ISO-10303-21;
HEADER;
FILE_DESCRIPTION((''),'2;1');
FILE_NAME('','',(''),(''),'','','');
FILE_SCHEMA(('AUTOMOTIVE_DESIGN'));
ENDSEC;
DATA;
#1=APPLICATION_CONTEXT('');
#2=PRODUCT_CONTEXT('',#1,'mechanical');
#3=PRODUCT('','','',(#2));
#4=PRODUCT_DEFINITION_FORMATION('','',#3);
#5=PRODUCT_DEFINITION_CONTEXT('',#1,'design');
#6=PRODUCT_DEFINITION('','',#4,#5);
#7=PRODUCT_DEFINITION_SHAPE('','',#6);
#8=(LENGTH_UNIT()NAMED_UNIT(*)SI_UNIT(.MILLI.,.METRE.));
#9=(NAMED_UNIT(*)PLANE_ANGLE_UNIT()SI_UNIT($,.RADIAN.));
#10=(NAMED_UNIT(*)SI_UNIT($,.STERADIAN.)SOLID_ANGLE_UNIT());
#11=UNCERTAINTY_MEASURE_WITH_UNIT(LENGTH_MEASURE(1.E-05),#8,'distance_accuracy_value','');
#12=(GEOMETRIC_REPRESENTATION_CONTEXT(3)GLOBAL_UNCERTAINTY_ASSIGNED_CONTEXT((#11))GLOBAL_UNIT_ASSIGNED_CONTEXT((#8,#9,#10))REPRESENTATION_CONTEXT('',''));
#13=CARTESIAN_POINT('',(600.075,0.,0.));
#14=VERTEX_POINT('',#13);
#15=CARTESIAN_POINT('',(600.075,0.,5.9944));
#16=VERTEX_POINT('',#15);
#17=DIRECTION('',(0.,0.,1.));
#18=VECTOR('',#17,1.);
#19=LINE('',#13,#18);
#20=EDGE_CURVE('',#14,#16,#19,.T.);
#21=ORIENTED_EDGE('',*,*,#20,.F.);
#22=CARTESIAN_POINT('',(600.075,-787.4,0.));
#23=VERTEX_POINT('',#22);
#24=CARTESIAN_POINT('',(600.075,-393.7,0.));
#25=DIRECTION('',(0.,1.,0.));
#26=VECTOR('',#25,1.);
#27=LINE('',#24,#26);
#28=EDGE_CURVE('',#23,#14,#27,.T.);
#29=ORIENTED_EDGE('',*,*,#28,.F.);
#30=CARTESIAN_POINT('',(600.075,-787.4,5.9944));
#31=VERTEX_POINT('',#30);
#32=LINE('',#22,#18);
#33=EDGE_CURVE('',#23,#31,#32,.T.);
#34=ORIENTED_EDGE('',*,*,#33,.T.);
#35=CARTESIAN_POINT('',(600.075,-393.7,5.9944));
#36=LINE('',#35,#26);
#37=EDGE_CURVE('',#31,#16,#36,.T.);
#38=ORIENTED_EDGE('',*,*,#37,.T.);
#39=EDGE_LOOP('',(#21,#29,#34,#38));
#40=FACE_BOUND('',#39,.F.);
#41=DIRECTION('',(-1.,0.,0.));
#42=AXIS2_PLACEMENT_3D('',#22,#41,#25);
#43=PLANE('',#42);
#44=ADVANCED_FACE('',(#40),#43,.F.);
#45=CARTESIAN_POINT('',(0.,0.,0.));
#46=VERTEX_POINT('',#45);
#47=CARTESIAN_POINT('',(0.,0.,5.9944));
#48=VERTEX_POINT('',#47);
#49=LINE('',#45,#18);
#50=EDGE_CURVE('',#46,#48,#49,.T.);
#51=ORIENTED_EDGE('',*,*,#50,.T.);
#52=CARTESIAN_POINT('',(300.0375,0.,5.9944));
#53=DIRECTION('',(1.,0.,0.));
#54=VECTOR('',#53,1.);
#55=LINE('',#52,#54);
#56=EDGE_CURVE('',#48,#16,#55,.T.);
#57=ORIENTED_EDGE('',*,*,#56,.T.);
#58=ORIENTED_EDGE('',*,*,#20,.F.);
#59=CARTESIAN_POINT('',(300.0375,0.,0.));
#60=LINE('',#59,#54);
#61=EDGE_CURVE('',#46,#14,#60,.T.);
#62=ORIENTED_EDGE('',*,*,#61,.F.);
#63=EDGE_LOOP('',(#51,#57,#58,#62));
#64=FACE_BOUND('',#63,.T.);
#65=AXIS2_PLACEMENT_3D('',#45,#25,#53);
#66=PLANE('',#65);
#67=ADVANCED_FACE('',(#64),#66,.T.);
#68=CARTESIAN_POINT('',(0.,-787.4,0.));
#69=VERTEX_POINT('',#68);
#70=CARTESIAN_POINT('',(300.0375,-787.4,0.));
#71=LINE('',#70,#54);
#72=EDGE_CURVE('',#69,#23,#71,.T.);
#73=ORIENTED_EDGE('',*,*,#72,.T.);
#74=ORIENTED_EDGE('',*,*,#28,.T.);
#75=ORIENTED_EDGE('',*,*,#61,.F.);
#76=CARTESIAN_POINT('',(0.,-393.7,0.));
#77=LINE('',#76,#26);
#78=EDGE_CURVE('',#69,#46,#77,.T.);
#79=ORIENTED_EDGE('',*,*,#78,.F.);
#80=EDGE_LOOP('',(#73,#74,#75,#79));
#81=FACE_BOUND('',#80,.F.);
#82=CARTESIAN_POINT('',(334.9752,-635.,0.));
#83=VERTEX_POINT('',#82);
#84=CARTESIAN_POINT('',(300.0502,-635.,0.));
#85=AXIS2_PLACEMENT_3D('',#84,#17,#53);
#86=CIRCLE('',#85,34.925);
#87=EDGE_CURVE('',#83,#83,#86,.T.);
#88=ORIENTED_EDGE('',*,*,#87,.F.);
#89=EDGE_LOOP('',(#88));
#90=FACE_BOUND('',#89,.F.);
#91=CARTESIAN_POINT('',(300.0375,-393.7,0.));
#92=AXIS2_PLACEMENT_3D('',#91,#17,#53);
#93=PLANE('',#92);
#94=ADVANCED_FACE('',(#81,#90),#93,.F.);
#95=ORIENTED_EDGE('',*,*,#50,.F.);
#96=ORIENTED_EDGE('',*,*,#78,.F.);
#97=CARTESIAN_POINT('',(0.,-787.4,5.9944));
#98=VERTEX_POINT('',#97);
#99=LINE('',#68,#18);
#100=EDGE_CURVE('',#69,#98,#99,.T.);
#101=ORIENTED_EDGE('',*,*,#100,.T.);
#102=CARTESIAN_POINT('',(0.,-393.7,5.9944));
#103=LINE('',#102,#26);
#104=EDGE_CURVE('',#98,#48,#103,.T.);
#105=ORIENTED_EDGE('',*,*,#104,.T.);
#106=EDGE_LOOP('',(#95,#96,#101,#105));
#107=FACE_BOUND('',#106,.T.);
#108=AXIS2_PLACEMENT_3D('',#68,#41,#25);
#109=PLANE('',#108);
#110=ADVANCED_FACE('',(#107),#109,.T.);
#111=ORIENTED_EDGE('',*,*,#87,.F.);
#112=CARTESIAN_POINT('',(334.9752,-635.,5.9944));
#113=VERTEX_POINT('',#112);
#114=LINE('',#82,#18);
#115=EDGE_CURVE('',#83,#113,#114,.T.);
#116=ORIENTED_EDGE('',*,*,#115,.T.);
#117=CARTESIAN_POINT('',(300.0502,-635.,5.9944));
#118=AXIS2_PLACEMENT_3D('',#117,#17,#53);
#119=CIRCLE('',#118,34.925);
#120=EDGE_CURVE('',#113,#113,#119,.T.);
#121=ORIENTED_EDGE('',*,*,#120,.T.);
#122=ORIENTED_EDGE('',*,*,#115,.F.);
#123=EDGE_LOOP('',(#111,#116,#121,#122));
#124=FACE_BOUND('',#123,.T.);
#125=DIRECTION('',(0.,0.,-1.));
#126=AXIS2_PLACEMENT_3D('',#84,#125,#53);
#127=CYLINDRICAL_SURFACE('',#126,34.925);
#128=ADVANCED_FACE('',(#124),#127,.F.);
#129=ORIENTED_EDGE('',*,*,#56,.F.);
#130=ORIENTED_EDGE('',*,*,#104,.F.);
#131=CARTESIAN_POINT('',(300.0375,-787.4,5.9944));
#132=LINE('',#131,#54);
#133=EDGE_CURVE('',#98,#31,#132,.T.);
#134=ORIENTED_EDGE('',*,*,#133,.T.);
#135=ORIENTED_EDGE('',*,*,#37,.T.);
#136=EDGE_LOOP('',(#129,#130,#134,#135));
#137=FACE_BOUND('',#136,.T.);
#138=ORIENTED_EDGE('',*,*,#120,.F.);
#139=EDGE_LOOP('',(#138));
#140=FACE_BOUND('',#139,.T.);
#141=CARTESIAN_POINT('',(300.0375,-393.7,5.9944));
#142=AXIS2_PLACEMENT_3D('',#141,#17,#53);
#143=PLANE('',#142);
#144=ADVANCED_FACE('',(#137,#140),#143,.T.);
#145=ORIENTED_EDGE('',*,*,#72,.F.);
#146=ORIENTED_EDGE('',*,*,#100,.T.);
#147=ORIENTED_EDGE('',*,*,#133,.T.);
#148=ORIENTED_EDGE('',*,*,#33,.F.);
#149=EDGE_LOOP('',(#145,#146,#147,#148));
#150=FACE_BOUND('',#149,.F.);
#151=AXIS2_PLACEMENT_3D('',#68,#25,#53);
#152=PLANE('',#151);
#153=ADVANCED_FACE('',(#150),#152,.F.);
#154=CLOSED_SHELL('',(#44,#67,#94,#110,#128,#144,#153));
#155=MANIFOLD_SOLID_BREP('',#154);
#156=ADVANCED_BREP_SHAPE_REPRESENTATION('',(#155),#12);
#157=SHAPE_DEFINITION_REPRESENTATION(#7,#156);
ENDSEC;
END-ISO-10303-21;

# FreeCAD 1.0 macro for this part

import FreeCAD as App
import Part
import Sketcher

V = App.Vector
Q = App.Units.Quantity


def add_polygon(sketch, points):
    """Adds a closed chain of lines whose ends are joined by coincident constraints."""
    first, n = sketch.GeometryCount, len(points)
    for a, b in zip(points, points[1:] + points[:1]):
        sketch.addGeometry(Part.LineSegment(App.Vector(*a, 0), App.Vector(*b, 0)), False)
    for i in range(n):
        sketch.addConstraint(Sketcher.Constraint("Coincident", first + i, 2, first + (i + 1) % n, 1))

doc = App.newDocument("Part")
body = doc.addObject("PartDesign::Body", "Body")

sketch1 = doc.addObject("Sketcher::SketchObject", "Sketch")
body.addObject(sketch1)
sketch1.AttachmentSupport = (doc.XY_Plane, [""])
sketch1.MapMode = "FlatFace"
add_polygon(sketch1, [(0, 0), (0, -787), (600, -787), (600, 0)])
sketch1.addGeometry(Part.Circle(V(300, -635, 0), V(0, 0, 1), 35), False)
sketch1.addConstraint([
    Sketcher.Constraint("Vertical", 0),
    Sketcher.Constraint("Horizontal", 1),
    Sketcher.Constraint("Vertical", 2),
    Sketcher.Constraint("Horizontal", 3),
    Sketcher.Constraint("Coincident", 3, 2, -1, 1),
    Sketcher.Constraint("Diameter", 4, Q("2.75 in")),
    Sketcher.Constraint("DistanceY", 0, 2, 0, 1, Q("31 in")),
    Sketcher.Constraint("DistanceY", 4, 3, -1, 1, Q("25 in")),
    Sketcher.Constraint("DistanceX", 1, 1, 1, 2, Q("23.625 in")),
    Sketcher.Constraint("DistanceX", -1, 1, 4, 3, Q("11.813 in")),
])
pad1 = doc.addObject("PartDesign::Pad", "Pad")
body.addObject(pad1)
pad1.Profile = sketch1
pad1.Length = Q("0.236 in")

doc.recompute()
